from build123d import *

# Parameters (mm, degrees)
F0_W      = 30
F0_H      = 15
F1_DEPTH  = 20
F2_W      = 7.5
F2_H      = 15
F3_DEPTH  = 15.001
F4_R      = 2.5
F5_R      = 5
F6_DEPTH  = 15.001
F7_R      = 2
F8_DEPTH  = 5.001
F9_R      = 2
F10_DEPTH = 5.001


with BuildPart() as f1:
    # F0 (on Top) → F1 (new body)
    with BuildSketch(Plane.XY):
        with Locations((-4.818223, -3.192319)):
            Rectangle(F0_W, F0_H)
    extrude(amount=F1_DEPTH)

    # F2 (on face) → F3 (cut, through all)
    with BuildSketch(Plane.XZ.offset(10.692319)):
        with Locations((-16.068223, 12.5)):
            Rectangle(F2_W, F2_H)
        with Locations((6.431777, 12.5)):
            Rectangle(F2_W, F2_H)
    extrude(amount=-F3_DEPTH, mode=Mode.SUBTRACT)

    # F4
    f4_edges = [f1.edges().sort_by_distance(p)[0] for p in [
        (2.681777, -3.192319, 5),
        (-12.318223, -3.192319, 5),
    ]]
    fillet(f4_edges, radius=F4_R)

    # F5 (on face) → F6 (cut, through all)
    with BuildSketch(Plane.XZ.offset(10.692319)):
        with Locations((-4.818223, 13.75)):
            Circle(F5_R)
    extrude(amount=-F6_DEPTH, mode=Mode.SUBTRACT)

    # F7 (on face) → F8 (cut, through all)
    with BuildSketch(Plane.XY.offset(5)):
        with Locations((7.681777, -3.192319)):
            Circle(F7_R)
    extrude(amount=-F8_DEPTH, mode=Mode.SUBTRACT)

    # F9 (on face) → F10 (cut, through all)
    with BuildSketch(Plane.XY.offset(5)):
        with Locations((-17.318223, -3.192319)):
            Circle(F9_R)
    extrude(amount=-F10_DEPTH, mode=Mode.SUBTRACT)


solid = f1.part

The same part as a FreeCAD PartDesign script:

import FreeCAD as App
import Part
import Sketcher

V = App.Vector


def edges_at(feature, points):
    """Names of the edges that pass closest to the given points."""
    edges = feature.Shape.Edges
    near = lambda p: min(range(len(edges)), key=lambda i: edges[i].distToShape(Part.Vertex(*p))[0])
    return sorted({f"Edge{near(p) + 1}" for p in points})

doc = App.newDocument("Part")
body = doc.addObject("PartDesign::Body", "Body")

# Sketch on XY plane
sketch1 = body.newObject("Sketcher::SketchObject", "Sketch")
sketch1.AttachmentSupport = (doc.getObject("XY_Plane"), [""])
sketch1.MapMode = "FlatFace"
sketch1.addGeometry([
    Part.LineSegment(V(-20, 4, 0), V(-20, -11, 0)),
    Part.LineSegment(V(-20, -11, 0), V(10, -11, 0)),
    Part.LineSegment(V(10, -11, 0), V(10, 4, 0)),
    Part.LineSegment(V(10, 4, 0), V(-20, 4, 0)),
], False)
sketch1.addConstraint([
    Sketcher.Constraint("Coincident", 0, 2, 1, 1),
    Sketcher.Constraint("Coincident", 1, 2, 2, 1),
    Sketcher.Constraint("Coincident", 2, 2, 3, 1),
    Sketcher.Constraint("Coincident", 3, 2, 0, 1),
    Sketcher.Constraint("Vertical", 0),
    Sketcher.Constraint("Horizontal", 1),
    Sketcher.Constraint("Vertical", 2),
    Sketcher.Constraint("Horizontal", 3),
    Sketcher.Constraint("DistanceX", 1, 1, 1, 2, 30.0),
    Sketcher.Constraint("DistanceY", 0, 2, 0, 1, 15.0),
    Sketcher.Constraint("DistanceY", 0, 2, -1, 1, 10.692319),
    Sketcher.Constraint("DistanceX", 0, 2, -1, 1, 19.818223),
])
pad1 = body.newObject("PartDesign::Pad", "Pad")
pad1.Profile = sketch1
pad1.Length = 20

# Sketch on XZ plane
sketch2 = body.newObject("Sketcher::SketchObject", "Sketch001")
sketch2.AttachmentSupport = (doc.getObject("XZ_Plane"), [""])
sketch2.MapMode = "FlatFace"
sketch2.AttachmentOffset = App.Placement(V(0, 0, 10.692319), App.Rotation())
sketch2.addGeometry([
    Part.LineSegment(V(-20, 20, 0), V(-20, 5, 0)),  # 0
    Part.LineSegment(V(-20, 5, 0), V(-12, 5, 0)),  # 1
    Part.LineSegment(V(-12, 5, 0), V(-12, 20, 0)),  # 2
    Part.LineSegment(V(-12, 20, 0), V(-20, 20, 0)),  # 3
    Part.LineSegment(V(3, 20, 0), V(3, 5, 0)),  # 4
    Part.LineSegment(V(3, 5, 0), V(10, 5, 0)),  # 5
    Part.LineSegment(V(10, 5, 0), V(10, 20, 0)),  # 6
    Part.LineSegment(V(10, 20, 0), V(3, 20, 0)),  # 7
], False)
sketch2.addConstraint([
    Sketcher.Constraint("Coincident", 0, 2, 1, 1),
    Sketcher.Constraint("Coincident", 1, 2, 2, 1),
    Sketcher.Constraint("Coincident", 2, 2, 3, 1),
    Sketcher.Constraint("Coincident", 3, 2, 0, 1),
    Sketcher.Constraint("Coincident", 4, 2, 5, 1),
    Sketcher.Constraint("Coincident", 5, 2, 6, 1),
    Sketcher.Constraint("Coincident", 6, 2, 7, 1),
    Sketcher.Constraint("Coincident", 7, 2, 4, 1),
    Sketcher.Constraint("Vertical", 0),
    Sketcher.Constraint("Horizontal", 1),
    Sketcher.Constraint("Vertical", 2),
    Sketcher.Constraint("Horizontal", 3),
    Sketcher.Constraint("Vertical", 4),
    Sketcher.Constraint("Horizontal", 5),
    Sketcher.Constraint("Vertical", 6),
    Sketcher.Constraint("Horizontal", 7),
    Sketcher.Constraint("Horizontal", 1, 2, 4, 2),
    Sketcher.Constraint("Horizontal", 3, 2, 6, 2),
    Sketcher.Constraint("Equal", 3, 5),
    Sketcher.Constraint("DistanceY", 0, 2, 0, 1, 15.0),
    Sketcher.Constraint("DistanceX", 1, 1, 1, 2, 7.5),
    Sketcher.Constraint("DistanceY", -1, 1, 0, 2, 5.0),
    Sketcher.Constraint("DistanceX", 1, 2, 4, 2, 15.0),
    Sketcher.Constraint("DistanceX", 0, 2, -1, 1, 19.818223),
])
pocket1 = body.newObject("PartDesign::Pocket", "Pocket")
pocket1.Profile = sketch2
pocket1.Type = "ThroughAll"
doc.recompute()

fillet = body.newObject("PartDesign::Fillet", "Fillet")
fillet.Base = (pocket1, edges_at(pocket1, [(2.682, -3.192, 5), (-12.318, -3.192, 5)]))
fillet.Radius = 2.5

# Sketch on XZ plane
sketch3 = body.newObject("Sketcher::SketchObject", "Sketch002")
sketch3.AttachmentSupport = (doc.getObject("XZ_Plane"), [""])
sketch3.MapMode = "FlatFace"
sketch3.AttachmentOffset = App.Placement(V(0, 0, 10.692319), App.Rotation())
sketch3.addGeometry(Part.Circle(V(-5, 14, 0), V(0, 0, 1), 5), False)
sketch3.addConstraint([
    Sketcher.Constraint("Diameter", 0, 10.0),
    Sketcher.Constraint("DistanceY", -1, 1, 0, 3, 13.75),
    Sketcher.Constraint("DistanceX", 0, 3, -1, 1, 4.818223),
])
pocket2 = body.newObject("PartDesign::Pocket", "Pocket001")
pocket2.Profile = sketch3
pocket2.Type = "ThroughAll"

# Sketch on XY plane
sketch4 = body.newObject("Sketcher::SketchObject", "Sketch003")
sketch4.AttachmentSupport = (doc.getObject("XY_Plane"), [""])
sketch4.MapMode = "FlatFace"
sketch4.AttachmentOffset = App.Placement(V(0, 0, 5), App.Rotation())
sketch4.addGeometry(Part.Circle(V(7.7, -3.2, 0), V(0, 0, 1), 2), False)
sketch4.addConstraint([
    Sketcher.Constraint("Diameter", 0, 4.0),
    Sketcher.Constraint("DistanceY", 0, 3, -1, 1, 3.192319),
    Sketcher.Constraint("DistanceX", -1, 1, 0, 3, 7.681777),
])
pocket3 = body.newObject("PartDesign::Pocket", "Pocket002")
pocket3.Profile = sketch4
pocket3.Type = "ThroughAll"

# Sketch on XY plane
sketch5 = body.newObject("Sketcher::SketchObject", "Sketch004")
sketch5.AttachmentSupport = (doc.getObject("XY_Plane"), [""])
sketch5.MapMode = "FlatFace"
sketch5.AttachmentOffset = App.Placement(V(0, 0, 5), App.Rotation())
sketch5.addGeometry(Part.Circle(V(-17.3, -3.2, 0), V(0, 0, 1), 2), False)
sketch5.addConstraint([
    Sketcher.Constraint("Diameter", 0, 4.0),
    Sketcher.Constraint("DistanceY", 0, 3, -1, 1, 3.192319),
    Sketcher.Constraint("DistanceX", 0, 3, -1, 1, 17.318223),
])
pocket4 = body.newObject("PartDesign::Pocket", "Pocket003")
pocket4.Profile = sketch5
pocket4.Type = "ThroughAll"

doc.recompute()
